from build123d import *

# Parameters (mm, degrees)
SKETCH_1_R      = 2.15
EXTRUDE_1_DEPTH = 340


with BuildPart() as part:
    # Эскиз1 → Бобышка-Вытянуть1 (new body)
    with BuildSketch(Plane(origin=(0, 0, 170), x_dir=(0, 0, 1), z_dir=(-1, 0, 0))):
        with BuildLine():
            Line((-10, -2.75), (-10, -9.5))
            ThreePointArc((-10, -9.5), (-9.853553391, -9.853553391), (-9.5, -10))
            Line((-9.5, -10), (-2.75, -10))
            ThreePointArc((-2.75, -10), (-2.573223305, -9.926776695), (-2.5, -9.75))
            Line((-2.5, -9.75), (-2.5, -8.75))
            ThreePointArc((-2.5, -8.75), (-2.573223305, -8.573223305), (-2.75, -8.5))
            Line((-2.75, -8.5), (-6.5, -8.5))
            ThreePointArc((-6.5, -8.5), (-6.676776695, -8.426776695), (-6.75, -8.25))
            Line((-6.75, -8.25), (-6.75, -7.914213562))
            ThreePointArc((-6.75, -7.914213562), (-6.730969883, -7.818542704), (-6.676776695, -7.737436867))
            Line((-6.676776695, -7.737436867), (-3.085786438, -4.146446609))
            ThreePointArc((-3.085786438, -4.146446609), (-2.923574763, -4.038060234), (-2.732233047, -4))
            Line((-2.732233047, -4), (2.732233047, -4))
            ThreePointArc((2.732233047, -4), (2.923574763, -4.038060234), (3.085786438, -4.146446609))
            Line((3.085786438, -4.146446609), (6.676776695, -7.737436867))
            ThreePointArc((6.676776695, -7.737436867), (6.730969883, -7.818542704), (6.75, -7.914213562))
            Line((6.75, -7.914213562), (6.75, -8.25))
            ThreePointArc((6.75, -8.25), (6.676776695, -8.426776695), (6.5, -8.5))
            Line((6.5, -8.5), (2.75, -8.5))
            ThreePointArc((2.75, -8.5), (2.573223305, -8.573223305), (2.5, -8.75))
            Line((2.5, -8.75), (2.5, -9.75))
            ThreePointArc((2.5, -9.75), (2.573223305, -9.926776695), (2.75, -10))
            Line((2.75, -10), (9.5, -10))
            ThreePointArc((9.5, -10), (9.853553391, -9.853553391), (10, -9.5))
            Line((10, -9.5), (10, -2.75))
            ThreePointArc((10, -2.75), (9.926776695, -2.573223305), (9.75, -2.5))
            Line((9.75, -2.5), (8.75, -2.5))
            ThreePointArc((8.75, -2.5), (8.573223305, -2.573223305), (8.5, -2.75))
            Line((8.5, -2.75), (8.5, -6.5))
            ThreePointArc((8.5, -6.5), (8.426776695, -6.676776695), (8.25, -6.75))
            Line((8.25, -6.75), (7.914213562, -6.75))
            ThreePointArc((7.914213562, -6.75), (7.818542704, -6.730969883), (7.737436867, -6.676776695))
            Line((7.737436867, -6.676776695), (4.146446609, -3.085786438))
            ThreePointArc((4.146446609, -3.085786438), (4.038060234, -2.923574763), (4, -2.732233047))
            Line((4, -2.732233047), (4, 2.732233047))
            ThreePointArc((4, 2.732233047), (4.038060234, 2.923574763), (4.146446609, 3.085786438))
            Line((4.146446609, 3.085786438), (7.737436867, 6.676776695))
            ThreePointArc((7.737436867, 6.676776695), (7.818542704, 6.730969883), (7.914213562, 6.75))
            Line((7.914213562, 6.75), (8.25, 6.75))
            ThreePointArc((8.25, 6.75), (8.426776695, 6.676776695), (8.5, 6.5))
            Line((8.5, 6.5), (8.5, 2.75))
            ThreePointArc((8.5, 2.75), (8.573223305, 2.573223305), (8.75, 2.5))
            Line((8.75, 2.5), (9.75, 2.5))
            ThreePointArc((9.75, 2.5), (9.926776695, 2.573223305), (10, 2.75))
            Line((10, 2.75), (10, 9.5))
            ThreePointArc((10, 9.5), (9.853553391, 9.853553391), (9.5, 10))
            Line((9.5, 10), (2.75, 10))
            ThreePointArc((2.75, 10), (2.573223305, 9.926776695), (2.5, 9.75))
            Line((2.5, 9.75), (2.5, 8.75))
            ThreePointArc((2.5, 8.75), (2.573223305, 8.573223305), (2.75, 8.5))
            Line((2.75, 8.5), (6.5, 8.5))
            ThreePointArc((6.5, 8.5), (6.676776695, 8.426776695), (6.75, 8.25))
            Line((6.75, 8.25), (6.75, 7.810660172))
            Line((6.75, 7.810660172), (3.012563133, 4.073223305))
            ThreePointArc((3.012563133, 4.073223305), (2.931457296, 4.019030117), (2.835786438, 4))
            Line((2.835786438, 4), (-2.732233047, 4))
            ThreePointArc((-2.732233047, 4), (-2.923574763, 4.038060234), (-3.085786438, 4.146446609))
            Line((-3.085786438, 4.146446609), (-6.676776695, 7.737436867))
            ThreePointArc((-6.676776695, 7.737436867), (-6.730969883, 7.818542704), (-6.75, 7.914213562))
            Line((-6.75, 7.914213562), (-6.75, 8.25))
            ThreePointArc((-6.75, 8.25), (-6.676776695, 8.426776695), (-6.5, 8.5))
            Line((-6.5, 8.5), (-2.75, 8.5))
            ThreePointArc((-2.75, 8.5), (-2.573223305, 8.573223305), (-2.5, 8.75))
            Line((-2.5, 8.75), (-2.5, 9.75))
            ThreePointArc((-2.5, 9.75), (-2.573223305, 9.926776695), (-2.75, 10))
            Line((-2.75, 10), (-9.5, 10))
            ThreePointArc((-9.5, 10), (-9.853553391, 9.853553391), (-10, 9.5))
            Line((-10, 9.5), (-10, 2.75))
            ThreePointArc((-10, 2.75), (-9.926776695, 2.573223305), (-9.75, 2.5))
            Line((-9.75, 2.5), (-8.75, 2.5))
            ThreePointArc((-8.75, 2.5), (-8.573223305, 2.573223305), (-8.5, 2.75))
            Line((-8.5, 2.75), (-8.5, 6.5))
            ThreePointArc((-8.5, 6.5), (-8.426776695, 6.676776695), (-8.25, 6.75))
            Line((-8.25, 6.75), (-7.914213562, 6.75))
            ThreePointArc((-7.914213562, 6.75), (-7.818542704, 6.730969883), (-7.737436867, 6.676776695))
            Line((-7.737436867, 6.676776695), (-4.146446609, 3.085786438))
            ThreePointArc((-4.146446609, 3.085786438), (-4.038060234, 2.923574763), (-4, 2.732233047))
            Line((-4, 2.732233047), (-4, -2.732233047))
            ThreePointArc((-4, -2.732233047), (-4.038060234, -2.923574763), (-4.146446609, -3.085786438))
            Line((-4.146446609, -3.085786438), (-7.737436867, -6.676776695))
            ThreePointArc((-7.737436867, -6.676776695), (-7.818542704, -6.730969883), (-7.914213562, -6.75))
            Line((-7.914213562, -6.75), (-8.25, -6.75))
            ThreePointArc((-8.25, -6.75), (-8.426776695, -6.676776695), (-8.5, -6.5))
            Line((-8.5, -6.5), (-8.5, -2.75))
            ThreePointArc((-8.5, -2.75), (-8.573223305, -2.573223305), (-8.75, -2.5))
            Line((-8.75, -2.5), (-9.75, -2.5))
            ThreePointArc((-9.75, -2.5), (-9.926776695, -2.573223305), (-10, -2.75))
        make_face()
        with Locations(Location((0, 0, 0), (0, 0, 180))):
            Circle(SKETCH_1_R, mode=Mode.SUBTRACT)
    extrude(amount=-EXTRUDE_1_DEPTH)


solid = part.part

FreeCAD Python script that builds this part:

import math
import FreeCAD as App
import Part
import Sketcher

V = App.Vector

doc = App.newDocument("Part")
params = doc.addObject("Spreadsheet::Sheet", "Params")
for row, (alias, value) in enumerate([
    ("sketch1_diameter", "4.3 mm"),
    ("sketch1_radius", "0.5 mm"),
    ("sketch1_width", "1 mm"),
    ("sketch1_radius2", "0.25 mm"),
    ("sketch1_width2", "6.75 mm"),
    ("pad1_length", "340 mm"),
], start=1):
    params.set(f"A{row}", alias)
    params.set(f"B{row}", "=" + value)
    params.setAlias(f"B{row}", alias)

body = doc.addObject("PartDesign::Body", "Body")

# Sketch on YZ plane
sketch1 = doc.addObject("Sketcher::SketchObject", "Sketch")
body.addObject(sketch1)
sketch1.AttachmentSupport = (doc.YZ_Plane, [""])
sketch1.MapMode = "FlatFace"
sketch1.addGeometry([
    Part.LineSegment(V(-2.75, 160, 0), V(-9.5, 160, 0)),  # 0
    Part.ArcOfCircle(Part.Circle(V(-9.5, 160.5, 0), V(0, 0, 1), 0.5), math.radians(180), math.radians(270)),  # 1
    Part.LineSegment(V(-10, 160.5, 0), V(-10, 167.25, 0)),  # 2
    Part.ArcOfCircle(Part.Circle(V(-9.75, 167.25, 0), V(0, 0, 1), 0.25), math.radians(90), math.radians(180)),  # 3
    Part.LineSegment(V(-9.75, 167.5, 0), V(-8.75, 167.5, 0)),  # 4
    Part.ArcOfCircle(Part.Circle(V(-8.75, 167.25, 0), V(0, 0, 1), 0.25), math.radians(0), math.radians(90)),  # 5
    Part.LineSegment(V(-8.5, 167.25, 0), V(-8.5, 163.5, 0)),  # 6
    Part.ArcOfCircle(Part.Circle(V(-8.25, 163.5, 0), V(0, 0, 1), 0.25), math.radians(-180), math.radians(-90)),  # 7
    Part.LineSegment(V(-8.25, 163.25, 0), V(-7.91, 163.25, 0)),  # 8
    Part.ArcOfCircle(Part.Circle(V(-7.91, 163.5, 0), V(0, 0, 1), 0.25), math.radians(-90), math.radians(-45)),  # 9
    Part.LineSegment(V(-7.74, 163.32, 0), V(-4.15, 166.91, 0)),  # 10
    Part.ArcOfCircle(Part.Circle(V(-4.5, 167.27, 0), V(0, 0, 1), 0.5), math.radians(-45), math.radians(0)),  # 11
    Part.LineSegment(V(-4, 167.27, 0), V(-4, 172.73, 0)),  # 12
    Part.ArcOfCircle(Part.Circle(V(-4.5, 172.73, 0), V(0, 0, 1), 0.5), math.radians(0), math.radians(45)),  # 13
    Part.LineSegment(V(-4.15, 173.09, 0), V(-7.74, 176.68, 0)),  # 14
    Part.ArcOfCircle(Part.Circle(V(-7.91, 176.5, 0), V(0, 0, 1), 0.25), math.radians(45), math.radians(90)),  # 15
    Part.LineSegment(V(-7.91, 176.75, 0), V(-8.25, 176.75, 0)),  # 16
    Part.ArcOfCircle(Part.Circle(V(-8.25, 176.5, 0), V(0, 0, 1), 0.25), math.radians(90), math.radians(180)),  # 17
    Part.LineSegment(V(-8.5, 176.5, 0), V(-8.5, 172.75, 0)),  # 18
    Part.ArcOfCircle(Part.Circle(V(-8.75, 172.75, 0), V(0, 0, 1), 0.25), math.radians(-90), math.radians(0)),  # 19
    Part.LineSegment(V(-8.75, 172.5, 0), V(-9.75, 172.5, 0)),  # 20
    Part.ArcOfCircle(Part.Circle(V(-9.75, 172.75, 0), V(0, 0, 1), 0.25), math.radians(-180), math.radians(-90)),  # 21
    Part.LineSegment(V(-10, 172.75, 0), V(-10, 179.5, 0)),  # 22
    Part.ArcOfCircle(Part.Circle(V(-9.5, 179.5, 0), V(0, 0, 1), 0.5), math.radians(90), math.radians(180)),  # 23
    Part.LineSegment(V(-9.5, 180, 0), V(-2.75, 180, 0)),  # 24
    Part.ArcOfCircle(Part.Circle(V(-2.75, 179.75, 0), V(0, 0, 1), 0.25), math.radians(0), math.radians(90)),  # 25
    Part.LineSegment(V(-2.5, 179.75, 0), V(-2.5, 178.75, 0)),  # 26
    Part.ArcOfCircle(Part.Circle(V(-2.75, 178.75, 0), V(0, 0, 1), 0.25), math.radians(-90), math.radians(0)),  # 27
    Part.LineSegment(V(-2.75, 178.5, 0), V(-6.5, 178.5, 0)),  # 28
    Part.ArcOfCircle(Part.Circle(V(-6.5, 178.25, 0), V(0, 0, 1), 0.25), math.radians(90), math.radians(180)),  # 29
    Part.LineSegment(V(-6.75, 178.25, 0), V(-6.75, 177.91, 0)),  # 30
    Part.ArcOfCircle(Part.Circle(V(-6.5, 177.91, 0), V(0, 0, 1), 0.25), math.radians(180), math.radians(225)),  # 31
    Part.LineSegment(V(-6.68, 177.74, 0), V(-3.09, 174.15, 0)),  # 32
    Part.ArcOfCircle(Part.Circle(V(-2.73, 174.5, 0), V(0, 0, 1), 0.5), math.radians(-135), math.radians(-90)),  # 33
    Part.LineSegment(V(-2.73, 174, 0), V(2.73, 174, 0)),  # 34
    Part.ArcOfCircle(Part.Circle(V(2.73, 174.5, 0), V(0, 0, 1), 0.5), math.radians(-90), math.radians(-45)),  # 35
    Part.LineSegment(V(3.09, 174.15, 0), V(6.68, 177.74, 0)),  # 36
    Part.ArcOfCircle(Part.Circle(V(6.5, 177.91, 0), V(0, 0, 1), 0.25), math.radians(-45), math.radians(0)),  # 37
    Part.LineSegment(V(6.75, 177.91, 0), V(6.75, 178.25, 0)),  # 38
    Part.ArcOfCircle(Part.Circle(V(6.5, 178.25, 0), V(0, 0, 1), 0.25), math.radians(0), math.radians(90)),  # 39
    Part.LineSegment(V(6.5, 178.5, 0), V(2.75, 178.5, 0)),  # 40
    Part.ArcOfCircle(Part.Circle(V(2.75, 178.75, 0), V(0, 0, 1), 0.25), math.radians(-180), math.radians(-90)),  # 41
    Part.LineSegment(V(2.5, 178.75, 0), V(2.5, 179.75, 0)),  # 42
    Part.ArcOfCircle(Part.Circle(V(2.75, 179.75, 0), V(0, 0, 1), 0.25), math.radians(90), math.radians(180)),  # 43
    Part.LineSegment(V(2.75, 180, 0), V(9.5, 180, 0)),  # 44
    Part.ArcOfCircle(Part.Circle(V(9.5, 179.5, 0), V(0, 0, 1), 0.5), math.radians(0), math.radians(90)),  # 45
    Part.LineSegment(V(10, 179.5, 0), V(10, 172.75, 0)),  # 46
    Part.ArcOfCircle(Part.Circle(V(9.75, 172.75, 0), V(0, 0, 1), 0.25), math.radians(-90), math.radians(0)),  # 47
    Part.LineSegment(V(9.75, 172.5, 0), V(8.75, 172.5, 0)),  # 48
    Part.ArcOfCircle(Part.Circle(V(8.75, 172.75, 0), V(0, 0, 1), 0.25), math.radians(-180), math.radians(-90)),  # 49
    Part.LineSegment(V(8.5, 172.75, 0), V(8.5, 176.5, 0)),  # 50
    Part.ArcOfCircle(Part.Circle(V(8.25, 176.5, 0), V(0, 0, 1), 0.25), math.radians(0), math.radians(90)),  # 51
    Part.LineSegment(V(8.25, 176.75, 0), V(7.81, 176.75, 0)),  # 52
    Part.LineSegment(V(7.81, 176.75, 0), V(4.07, 173.01, 0)),  # 53
    Part.ArcOfCircle(Part.Circle(V(4.25, 172.84, 0), V(0, 0, 1), 0.25), math.radians(135), math.radians(180)),  # 54
    Part.LineSegment(V(4, 172.84, 0), V(4, 167.27, 0)),  # 55
    Part.ArcOfCircle(Part.Circle(V(4.5, 167.27, 0), V(0, 0, 1), 0.5), math.radians(-180), math.radians(-135)),  # 56
    Part.LineSegment(V(4.15, 166.91, 0), V(7.74, 163.32, 0)),  # 57
    Part.ArcOfCircle(Part.Circle(V(7.91, 163.5, 0), V(0, 0, 1), 0.25), math.radians(-135), math.radians(-90)),  # 58
    Part.LineSegment(V(7.91, 163.25, 0), V(8.25, 163.25, 0)),  # 59
    Part.ArcOfCircle(Part.Circle(V(8.25, 163.5, 0), V(0, 0, 1), 0.25), math.radians(-90), math.radians(0)),  # 60
    Part.LineSegment(V(8.5, 163.5, 0), V(8.5, 167.25, 0)),  # 61
    Part.ArcOfCircle(Part.Circle(V(8.75, 167.25, 0), V(0, 0, 1), 0.25), math.radians(90), math.radians(180)),  # 62
    Part.LineSegment(V(8.75, 167.5, 0), V(9.75, 167.5, 0)),  # 63
    Part.ArcOfCircle(Part.Circle(V(9.75, 167.25, 0), V(0, 0, 1), 0.25), math.radians(0), math.radians(90)),  # 64
    Part.LineSegment(V(10, 167.25, 0), V(10, 160.5, 0)),  # 65
    Part.ArcOfCircle(Part.Circle(V(9.5, 160.5, 0), V(0, 0, 1), 0.5), math.radians(-90), math.radians(0)),  # 66
    Part.LineSegment(V(9.5, 160, 0), V(2.75, 160, 0)),  # 67
    Part.ArcOfCircle(Part.Circle(V(2.75, 160.25, 0), V(0, 0, 1), 0.25), math.radians(-180), math.radians(-90)),  # 68
    Part.LineSegment(V(2.5, 160.25, 0), V(2.5, 161.25, 0)),  # 69
    Part.ArcOfCircle(Part.Circle(V(2.75, 161.25, 0), V(0, 0, 1), 0.25), math.radians(90), math.radians(180)),  # 70
    Part.LineSegment(V(2.75, 161.5, 0), V(6.5, 161.5, 0)),  # 71
    Part.ArcOfCircle(Part.Circle(V(6.5, 161.75, 0), V(0, 0, 1), 0.25), math.radians(-90), math.radians(0)),  # 72
    Part.LineSegment(V(6.75, 161.75, 0), V(6.75, 162.09, 0)),  # 73
    Part.ArcOfCircle(Part.Circle(V(6.5, 162.09, 0), V(0, 0, 1), 0.25), math.radians(0), math.radians(45)),  # 74
    Part.LineSegment(V(6.68, 162.26, 0), V(3.09, 165.85, 0)),  # 75
    Part.ArcOfCircle(Part.Circle(V(2.73, 165.5, 0), V(0, 0, 1), 0.5), math.radians(45), math.radians(90)),  # 76
    Part.LineSegment(V(2.73, 166, 0), V(-2.73, 166, 0)),  # 77
    Part.ArcOfCircle(Part.Circle(V(-2.73, 165.5, 0), V(0, 0, 1), 0.5), math.radians(90), math.radians(135)),  # 78
    Part.LineSegment(V(-3.09, 165.85, 0), V(-6.68, 162.26, 0)),  # 79
    Part.ArcOfCircle(Part.Circle(V(-6.5, 162.09, 0), V(0, 0, 1), 0.25), math.radians(135), math.radians(180)),  # 80
    Part.LineSegment(V(-6.75, 162.09, 0), V(-6.75, 161.75, 0)),  # 81
    Part.ArcOfCircle(Part.Circle(V(-6.5, 161.75, 0), V(0, 0, 1), 0.25), math.radians(-180), math.radians(-90)),  # 82
    Part.LineSegment(V(-6.5, 161.5, 0), V(-2.75, 161.5, 0)),  # 83
    Part.ArcOfCircle(Part.Circle(V(-2.75, 161.25, 0), V(0, 0, 1), 0.25), math.radians(0), math.radians(90)),  # 84
    Part.LineSegment(V(-2.5, 161.25, 0), V(-2.5, 160.25, 0)),  # 85
    Part.ArcOfCircle(Part.Circle(V(-2.75, 160.25, 0), V(0, 0, 1), 0.25), math.radians(-90), math.radians(0)),  # 86
    Part.Circle(V(0, 170, 0), V(0, 0, 1), 2.15),  # 87
], False)
sketch1.addConstraint([
    Sketcher.Constraint("Tangent", 0, 2, 1, 2),
    Sketcher.Constraint("Tangent", 1, 1, 2, 1),
    Sketcher.Constraint("Tangent", 2, 2, 3, 2),
    Sketcher.Constraint("Tangent", 3, 1, 4, 1),
    Sketcher.Constraint("Tangent", 4, 2, 5, 2),
    Sketcher.Constraint("Tangent", 5, 1, 6, 1),
    Sketcher.Constraint("Tangent", 6, 2, 7, 1),
    Sketcher.Constraint("Tangent", 7, 2, 8, 1),
    Sketcher.Constraint("Tangent", 8, 2, 9, 1),
    Sketcher.Constraint("Tangent", 9, 2, 10, 1),
    Sketcher.Constraint("Tangent", 10, 2, 11, 1),
    Sketcher.Constraint("Tangent", 11, 2, 12, 1),
    Sketcher.Constraint("Tangent", 12, 2, 13, 1),
    Sketcher.Constraint("Tangent", 13, 2, 14, 1),
    Sketcher.Constraint("Tangent", 14, 2, 15, 1),
    Sketcher.Constraint("Tangent", 15, 2, 16, 1),
    Sketcher.Constraint("Tangent", 16, 2, 17, 1),
    Sketcher.Constraint("Tangent", 17, 2, 18, 1),
    Sketcher.Constraint("Tangent", 18, 2, 19, 2),
    Sketcher.Constraint("Tangent", 19, 1, 20, 1),
    Sketcher.Constraint("Tangent", 20, 2, 21, 2),
    Sketcher.Constraint("Tangent", 21, 1, 22, 1),
    Sketcher.Constraint("Tangent", 22, 2, 23, 2),
    Sketcher.Constraint("Tangent", 23, 1, 24, 1),
    Sketcher.Constraint("Tangent", 24, 2, 25, 2),
    Sketcher.Constraint("Tangent", 25, 1, 26, 1),
    Sketcher.Constraint("Tangent", 26, 2, 27, 2),
    Sketcher.Constraint("Tangent", 27, 1, 28, 1),
    Sketcher.Constraint("Tangent", 28, 2, 29, 1),
    Sketcher.Constraint("Tangent", 29, 2, 30, 1),
    Sketcher.Constraint("Tangent", 30, 2, 31, 1),
    Sketcher.Constraint("Tangent", 31, 2, 32, 1),
    Sketcher.Constraint("Tangent", 32, 2, 33, 1),
    Sketcher.Constraint("Tangent", 33, 2, 34, 1),
    Sketcher.Constraint("Tangent", 34, 2, 35, 1),
    Sketcher.Constraint("Tangent", 35, 2, 36, 1),
    Sketcher.Constraint("Tangent", 36, 2, 37, 1),
    Sketcher.Constraint("Tangent", 37, 2, 38, 1),
    Sketcher.Constraint("Tangent", 38, 2, 39, 1),
    Sketcher.Constraint("Tangent", 39, 2, 40, 1),
    Sketcher.Constraint("Tangent", 40, 2, 41, 2),
    Sketcher.Constraint("Tangent", 41, 1, 42, 1),
    Sketcher.Constraint("Tangent", 42, 2, 43, 2),
    Sketcher.Constraint("Tangent", 43, 1, 44, 1),
    Sketcher.Constraint("Tangent", 44, 2, 45, 2),
    Sketcher.Constraint("Tangent", 45, 1, 46, 1),
    Sketcher.Constraint("Tangent", 46, 2, 47, 2),
    Sketcher.Constraint("Tangent", 47, 1, 48, 1),
    Sketcher.Constraint("Tangent", 48, 2, 49, 2),
    Sketcher.Constraint("Tangent", 49, 1, 50, 1),
    Sketcher.Constraint("Tangent", 50, 2, 51, 1),
    Sketcher.Constraint("Tangent", 51, 2, 52, 1),
    Sketcher.Constraint("Coincident", 52, 2, 53, 1),
    Sketcher.Constraint("Tangent", 53, 2, 54, 1),
    Sketcher.Constraint("Tangent", 54, 2, 55, 1),
    Sketcher.Constraint("Tangent", 55, 2, 56, 1),
    Sketcher.Constraint("Tangent", 56, 2, 57, 1),
    Sketcher.Constraint("Tangent", 57, 2, 58, 1),
    Sketcher.Constraint("Tangent", 58, 2, 59, 1),
    Sketcher.Constraint("Tangent", 59, 2, 60, 1),
    Sketcher.Constraint("Tangent", 60, 2, 61, 1),
    Sketcher.Constraint("Tangent", 61, 2, 62, 2),
    Sketcher.Constraint("Tangent", 62, 1, 63, 1),
    Sketcher.Constraint("Tangent", 63, 2, 64, 2),
    Sketcher.Constraint("Tangent", 64, 1, 65, 1),
    Sketcher.Constraint("Tangent", 65, 2, 66, 2),
    Sketcher.Constraint("Tangent", 66, 1, 67, 1),
    Sketcher.Constraint("Tangent", 67, 2, 68, 2),
    Sketcher.Constraint("Tangent", 68, 1, 69, 1),
    Sketcher.Constraint("Tangent", 69, 2, 70, 2),
    Sketcher.Constraint("Tangent", 70, 1, 71, 1),
    Sketcher.Constraint("Tangent", 71, 2, 72, 1),
    Sketcher.Constraint("Tangent", 72, 2, 73, 1),
    Sketcher.Constraint("Tangent", 73, 2, 74, 1),
    Sketcher.Constraint("Tangent", 74, 2, 75, 1),
    Sketcher.Constraint("Tangent", 75, 2, 76, 1),
    Sketcher.Constraint("Tangent", 76, 2, 77, 1),
    Sketcher.Constraint("Tangent", 77, 2, 78, 1),
    Sketcher.Constraint("Tangent", 78, 2, 79, 1),
    Sketcher.Constraint("Tangent", 79, 2, 80, 1),
    Sketcher.Constraint("Tangent", 80, 2, 81, 1),
    Sketcher.Constraint("Tangent", 81, 2, 82, 1),
    Sketcher.Constraint("Tangent", 82, 2, 83, 1),
    Sketcher.Constraint("Tangent", 83, 2, 84, 2),
    Sketcher.Constraint("Tangent", 84, 1, 85, 1),
    Sketcher.Constraint("Tangent", 85, 2, 86, 2),
    Sketcher.Constraint("Tangent", 86, 1, 0, 1),
    Sketcher.Constraint("Horizontal", 0),
    Sketcher.Constraint("Vertical", 2),
    Sketcher.Constraint("Horizontal", 4),
    Sketcher.Constraint("Vertical", 6),
    Sketcher.Constraint("Horizontal", 8),
    Sketcher.Constraint("Vertical", 12),
    Sketcher.Constraint("Horizontal", 16),
    Sketcher.Constraint("Vertical", 18),
    Sketcher.Constraint("Horizontal", 20),
    Sketcher.Constraint("Vertical", 22),
    Sketcher.Constraint("Horizontal", 24),
    Sketcher.Constraint("Vertical", 26),
    Sketcher.Constraint("Horizontal", 28),
    Sketcher.Constraint("Vertical", 30),
    Sketcher.Constraint("Horizontal", 34),
    Sketcher.Constraint("Vertical", 38),
    Sketcher.Constraint("Horizontal", 40),
    Sketcher.Constraint("Vertical", 42),
    Sketcher.Constraint("Horizontal", 44),
    Sketcher.Constraint("Vertical", 46),
    Sketcher.Constraint("Horizontal", 48),
    Sketcher.Constraint("Vertical", 50),
    Sketcher.Constraint("Horizontal", 52),
    Sketcher.Constraint("Vertical", 55),
    Sketcher.Constraint("Horizontal", 59),
    Sketcher.Constraint("Vertical", 61),
    Sketcher.Constraint("Horizontal", 63),
    Sketcher.Constraint("Vertical", 65),
    Sketcher.Constraint("Horizontal", 67),
    Sketcher.Constraint("Vertical", 69),
    Sketcher.Constraint("Horizontal", 71),
    Sketcher.Constraint("Vertical", 73),
    Sketcher.Constraint("Horizontal", 77),
    Sketcher.Constraint("Vertical", 81),
    Sketcher.Constraint("Horizontal", 83),
    Sketcher.Constraint("Vertical", 85),
    Sketcher.Constraint("Equal", 3, 5),
    Sketcher.Constraint("Equal", 5, 7),
    Sketcher.Constraint("Equal", 7, 9),
    Sketcher.Constraint("Equal", 1, 11),
    Sketcher.Constraint("Equal", 11, 13),
    Sketcher.Constraint("Equal", 9, 15),
    Sketcher.Constraint("Equal", 15, 17),
    Sketcher.Constraint("Equal", 17, 19),
    Sketcher.Constraint("Equal", 19, 21),
    Sketcher.Constraint("Equal", 13, 23),
    Sketcher.Constraint("Equal", 21, 25),
    Sketcher.Constraint("Equal", 25, 27),
    Sketcher.Constraint("Equal", 27, 29),
    Sketcher.Constraint("Equal", 29, 31),
    Sketcher.Constraint("Equal", 23, 33),
    Sketcher.Constraint("Equal", 33, 35),
    Sketcher.Constraint("Equal", 31, 37),
    Sketcher.Constraint("Equal", 37, 39),
    Sketcher.Constraint("Equal", 39, 41),
    Sketcher.Constraint("Equal", 41, 43),
    Sketcher.Constraint("Equal", 35, 45),
    Sketcher.Constraint("Equal", 43, 47),
    Sketcher.Constraint("Equal", 47, 49),
    Sketcher.Constraint("Equal", 49, 51),
    Sketcher.Constraint("Equal", 51, 54),
    Sketcher.Constraint("Equal", 45, 56),
    Sketcher.Constraint("Equal", 54, 58),
    Sketcher.Constraint("Equal", 58, 60),
    Sketcher.Constraint("Equal", 60, 62),
    Sketcher.Constraint("Equal", 62, 64),
    Sketcher.Constraint("Equal", 56, 66),
    Sketcher.Constraint("Equal", 64, 68),
    Sketcher.Constraint("Equal", 68, 70),
    Sketcher.Constraint("Equal", 70, 72),
    Sketcher.Constraint("Equal", 72, 74),
    Sketcher.Constraint("Equal", 66, 76),
    Sketcher.Constraint("Equal", 76, 78),
    Sketcher.Constraint("Equal", 74, 80),
    Sketcher.Constraint("Equal", 80, 82),
    Sketcher.Constraint("Equal", 82, 84),
    Sketcher.Constraint("Equal", 84, 86),
    Sketcher.Constraint("Symmetric", 31, 3, 37, 3, -2),
    Sketcher.Constraint("Symmetric", 27, 3, 41, 3, -2),
    Sketcher.Constraint("Symmetric", 23, 3, 45, 3, -2),
    Sketcher.Constraint("Symmetric", 19, 3, 49, 3, -2),
    Sketcher.Constraint("Symmetric", 11, 3, 56, 3, -2),
    Sketcher.Constraint("Symmetric", 9, 3, 58, 3, -2),
    Sketcher.Constraint("Symmetric", 5, 3, 62, 3, -2),
    Sketcher.Constraint("Symmetric", 1, 3, 66, 3, -2),
    Sketcher.Constraint("Symmetric", 74, 3, 80, 3, -2),
    Sketcher.Constraint("Symmetric", 70, 3, 84, 3, -2),
    Sketcher.Constraint("PointOnObject", 87, 3, -2),
    Sketcher.Constraint("Perpendicular", 10, 14),
    Sketcher.Constraint("Parallel", 14, 32),
    Sketcher.Constraint("Perpendicular", 32, 36),
    Sketcher.Constraint("Parallel", 36, 53),
    Sketcher.Constraint("Perpendicular", 53, 57),
    Sketcher.Constraint("Parallel", 57, 75),
    Sketcher.Constraint("Perpendicular", 75, 79),
    Sketcher.Constraint("Horizontal", 17, 3, 51, 3),
    Sketcher.Constraint("Vertical", 9, 3, 15, 3),
    Sketcher.Constraint("Vertical", 7, 3, 17, 3),
    Sketcher.Constraint("Vertical", 3, 3, 21, 3),
    Sketcher.Constraint("Vertical", 43, 3, 68, 3),
    Sketcher.Constraint("Vertical", 39, 3, 72, 3),
    Sketcher.Constraint("Vertical", 35, 3, 76, 3),
    Sketcher.Constraint("Equal", 67, 2),
    Sketcher.Constraint("Equal", 83, 6),
    Sketcher.Constraint("Equal", 77, 12),
    Sketcher.Constraint("Equal", 6, 18),
    Sketcher.Constraint("Equal", 2, 22),
    Sketcher.Constraint("Equal", 63, 26),
    Sketcher.Constraint("Equal", 59, 30),
    Sketcher.Constraint("Equal", 42, 69),
    Sketcher.Constraint("Equal", 38, 73),
    Sketcher.Constraint("Equal", 14, 32),
    Sketcher.Constraint("Diameter", 87, 4.3),
    Sketcher.Constraint("Radius", 1, 0.5),
    Sketcher.Constraint("DistanceX", 4, 1, 4, 2, 1.0),
    Sketcher.Constraint("Radius", 3, 0.25),
    Sketcher.Constraint("DistanceY", -1, 1, 87, 3, 170.0),
    Sketcher.Constraint("DistanceY", -1, 1, 0, 2, 160.0),
    Sketcher.Constraint("DistanceX", 1, 1, -1, 1, 10.0),
    Sketcher.Constraint("DistanceX", 11, 2, -1, 1, 4.0),
    Sketcher.Constraint("DistanceX", 0, 2, 0, 1, 6.75),
    Sketcher.Constraint("DistanceX", 28, 2, 28, 1, 3.75),
    Sketcher.Constraint("DistanceX", 52, 2, 52, 1, 0.43934),
    Sketcher.Constraint("DistanceY", 55, 2, 55, 1, 5.568019),
])
sketch1.setExpression("Constraints[199]", "Params.sketch1_diameter")
sketch1.setExpression("Constraints[200]", "Params.sketch1_radius")
sketch1.setExpression("Constraints[201]", "Params.sketch1_width")
sketch1.setExpression("Constraints[202]", "Params.sketch1_radius2")
sketch1.setExpression("Constraints[207]", "Params.sketch1_width2")
pad1 = doc.addObject("PartDesign::Pad", "Pad")
body.addObject(pad1)
pad1.Profile = sketch1
pad1.setExpression("Length", "Params.pad1_length")

doc.recompute()
